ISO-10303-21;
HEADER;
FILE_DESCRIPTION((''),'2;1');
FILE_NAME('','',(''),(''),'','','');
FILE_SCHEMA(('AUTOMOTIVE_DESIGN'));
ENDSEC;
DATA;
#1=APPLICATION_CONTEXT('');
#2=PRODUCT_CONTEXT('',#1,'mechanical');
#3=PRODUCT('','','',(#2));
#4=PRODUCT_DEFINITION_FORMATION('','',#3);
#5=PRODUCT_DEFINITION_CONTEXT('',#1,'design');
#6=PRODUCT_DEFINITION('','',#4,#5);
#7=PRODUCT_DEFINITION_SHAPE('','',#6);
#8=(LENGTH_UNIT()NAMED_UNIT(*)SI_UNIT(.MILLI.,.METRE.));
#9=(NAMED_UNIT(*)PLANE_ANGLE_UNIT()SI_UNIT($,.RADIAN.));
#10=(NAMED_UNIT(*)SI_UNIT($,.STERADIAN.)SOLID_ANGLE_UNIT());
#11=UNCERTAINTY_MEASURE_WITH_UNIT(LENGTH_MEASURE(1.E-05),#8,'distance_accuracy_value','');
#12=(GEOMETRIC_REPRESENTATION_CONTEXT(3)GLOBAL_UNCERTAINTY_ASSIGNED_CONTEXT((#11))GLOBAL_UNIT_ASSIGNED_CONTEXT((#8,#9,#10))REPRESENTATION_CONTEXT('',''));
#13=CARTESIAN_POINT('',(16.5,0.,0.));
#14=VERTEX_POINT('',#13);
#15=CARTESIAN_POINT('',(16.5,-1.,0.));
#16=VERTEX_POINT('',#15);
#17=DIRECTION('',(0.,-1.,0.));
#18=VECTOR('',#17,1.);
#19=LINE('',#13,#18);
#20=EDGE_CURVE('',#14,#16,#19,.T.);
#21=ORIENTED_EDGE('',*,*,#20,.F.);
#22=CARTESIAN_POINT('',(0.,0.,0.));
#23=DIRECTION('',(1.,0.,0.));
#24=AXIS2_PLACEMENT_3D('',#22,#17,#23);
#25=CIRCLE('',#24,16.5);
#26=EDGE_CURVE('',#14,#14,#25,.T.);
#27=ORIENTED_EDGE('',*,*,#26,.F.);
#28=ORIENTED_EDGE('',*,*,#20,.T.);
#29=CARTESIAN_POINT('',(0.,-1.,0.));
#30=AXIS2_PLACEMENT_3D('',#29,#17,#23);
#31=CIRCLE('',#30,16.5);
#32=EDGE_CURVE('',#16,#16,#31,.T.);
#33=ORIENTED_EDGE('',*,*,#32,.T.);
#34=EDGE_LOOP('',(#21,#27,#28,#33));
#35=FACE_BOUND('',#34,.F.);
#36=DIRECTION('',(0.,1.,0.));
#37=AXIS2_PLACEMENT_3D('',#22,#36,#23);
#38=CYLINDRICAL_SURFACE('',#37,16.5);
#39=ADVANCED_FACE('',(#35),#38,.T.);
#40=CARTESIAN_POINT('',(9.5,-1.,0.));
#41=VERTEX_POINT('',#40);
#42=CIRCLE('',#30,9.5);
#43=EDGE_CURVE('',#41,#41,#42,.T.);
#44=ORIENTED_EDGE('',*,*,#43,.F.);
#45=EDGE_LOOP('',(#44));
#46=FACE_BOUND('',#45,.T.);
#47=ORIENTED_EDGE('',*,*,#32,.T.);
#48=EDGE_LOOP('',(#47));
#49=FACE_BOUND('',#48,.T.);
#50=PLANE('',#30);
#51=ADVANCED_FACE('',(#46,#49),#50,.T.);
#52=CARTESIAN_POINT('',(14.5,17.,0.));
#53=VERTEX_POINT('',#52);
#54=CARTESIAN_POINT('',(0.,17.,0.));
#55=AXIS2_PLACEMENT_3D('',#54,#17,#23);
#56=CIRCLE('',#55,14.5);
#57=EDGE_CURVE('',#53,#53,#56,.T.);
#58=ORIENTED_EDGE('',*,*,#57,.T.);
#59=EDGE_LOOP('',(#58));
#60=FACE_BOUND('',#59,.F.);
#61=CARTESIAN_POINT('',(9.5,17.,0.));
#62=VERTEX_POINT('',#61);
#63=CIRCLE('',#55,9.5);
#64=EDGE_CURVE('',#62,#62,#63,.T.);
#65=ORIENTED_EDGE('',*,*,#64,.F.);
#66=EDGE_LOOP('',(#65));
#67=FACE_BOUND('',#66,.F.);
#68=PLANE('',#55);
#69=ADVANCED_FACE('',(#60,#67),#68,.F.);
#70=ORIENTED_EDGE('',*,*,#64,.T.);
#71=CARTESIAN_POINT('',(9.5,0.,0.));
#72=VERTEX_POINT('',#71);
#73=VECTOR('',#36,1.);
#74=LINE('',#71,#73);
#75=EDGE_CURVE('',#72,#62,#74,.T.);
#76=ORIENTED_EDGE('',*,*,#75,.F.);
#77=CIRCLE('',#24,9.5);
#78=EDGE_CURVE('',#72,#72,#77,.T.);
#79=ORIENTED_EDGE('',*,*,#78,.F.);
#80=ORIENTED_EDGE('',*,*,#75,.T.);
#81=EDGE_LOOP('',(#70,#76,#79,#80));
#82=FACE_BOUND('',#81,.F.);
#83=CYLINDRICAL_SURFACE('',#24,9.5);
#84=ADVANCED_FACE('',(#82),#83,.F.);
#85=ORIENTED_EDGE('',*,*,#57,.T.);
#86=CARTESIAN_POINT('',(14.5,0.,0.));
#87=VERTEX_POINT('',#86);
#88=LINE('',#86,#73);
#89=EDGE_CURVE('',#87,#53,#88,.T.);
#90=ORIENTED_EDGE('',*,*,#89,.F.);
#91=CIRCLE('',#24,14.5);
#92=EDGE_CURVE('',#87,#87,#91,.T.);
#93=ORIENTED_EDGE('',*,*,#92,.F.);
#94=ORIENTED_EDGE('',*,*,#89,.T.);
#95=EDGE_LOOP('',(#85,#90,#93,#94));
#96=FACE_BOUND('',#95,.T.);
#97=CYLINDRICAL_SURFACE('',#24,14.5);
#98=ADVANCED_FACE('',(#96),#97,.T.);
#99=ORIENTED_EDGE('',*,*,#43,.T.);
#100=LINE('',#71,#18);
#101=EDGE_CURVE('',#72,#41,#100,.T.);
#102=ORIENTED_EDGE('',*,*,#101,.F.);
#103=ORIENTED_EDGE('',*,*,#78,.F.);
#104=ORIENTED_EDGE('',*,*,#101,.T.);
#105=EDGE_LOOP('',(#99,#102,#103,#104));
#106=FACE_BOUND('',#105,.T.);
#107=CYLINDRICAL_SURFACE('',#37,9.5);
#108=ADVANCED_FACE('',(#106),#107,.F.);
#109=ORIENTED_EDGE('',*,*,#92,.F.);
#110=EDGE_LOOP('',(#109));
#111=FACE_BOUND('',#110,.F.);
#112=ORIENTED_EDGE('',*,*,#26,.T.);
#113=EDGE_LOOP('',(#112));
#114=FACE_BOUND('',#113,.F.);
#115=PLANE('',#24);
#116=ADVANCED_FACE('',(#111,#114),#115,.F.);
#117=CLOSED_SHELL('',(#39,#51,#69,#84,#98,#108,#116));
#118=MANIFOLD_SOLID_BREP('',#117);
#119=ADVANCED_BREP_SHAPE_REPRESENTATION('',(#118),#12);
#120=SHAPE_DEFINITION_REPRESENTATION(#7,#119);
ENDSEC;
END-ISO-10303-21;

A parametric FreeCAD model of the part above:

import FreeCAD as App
import Part
import Sketcher
from FreeCAD import Vector

doc = App.newDocument("Part")
params = doc.addObject("Spreadsheet::Sheet", "Params")
for row, (alias, value) in enumerate([
    ("sketch1_diameter", "33 mm"),
    ("sketch1_diameter2", "19 mm"),
    ("pad1_length", "1 mm"),
    ("sketch2_diameter", "29 mm"),
    ("sketch2_diameter2", "19 mm"),
    ("pad2_length", "17 mm"),
], start=1):
    params.set(f"A{row}", alias)
    params.set(f"B{row}", "=" + value)
    params.setAlias(f"B{row}", alias)

body = doc.addObject("PartDesign::Body", "Body")

sketch1 = body.newObject("Sketcher::SketchObject", "Sketch")
sketch1.AttachmentSupport = (doc.getObject("XZ_Plane"), [""])
sketch1.MapMode = "FlatFace"
sketch1.addGeometry(Part.Circle(Vector(0, 0, 0), Vector(0, 0, 1), 16), False)
sketch1.addGeometry(Part.Circle(Vector(0, 0, 0), Vector(0, 0, 1), 10), False)
sketch1.addConstraint(Sketcher.Constraint("Coincident", 0, 3, -1, 1))
sketch1.addConstraint(Sketcher.Constraint("Coincident", 1, 3, -1, 1))
sketch1.addConstraint(Sketcher.Constraint("Diameter", 0, 33.0))
sketch1.addConstraint(Sketcher.Constraint("Diameter", 1, 19.0))
sketch1.setExpression("Constraints[2]", "Params.sketch1_diameter")
sketch1.setExpression("Constraints[3]", "Params.sketch1_diameter2")
pad1 = body.newObject("PartDesign::Pad", "Pad")
pad1.Profile = sketch1
pad1.setExpression("Length", "Params.pad1_length")

sketch2 = body.newObject("Sketcher::SketchObject", "Sketch001")
sketch2.AttachmentSupport = (doc.getObject("XZ_Plane"), [""])
sketch2.MapMode = "FlatFace"
sketch2.addGeometry(Part.Circle(Vector(0, 0, 0), Vector(0, 0, 1), 14), False)
sketch2.addGeometry(Part.Circle(Vector(0, 0, 0), Vector(0, 0, 1), 10), False)
sketch2.addConstraint(Sketcher.Constraint("Coincident", 0, 3, -1, 1))
sketch2.addConstraint(Sketcher.Constraint("Coincident", 1, 3, -1, 1))
sketch2.addConstraint(Sketcher.Constraint("Diameter", 0, 29.0))
sketch2.addConstraint(Sketcher.Constraint("Diameter", 1, 19.0))
sketch2.setExpression("Constraints[2]", "Params.sketch2_diameter")
sketch2.setExpression("Constraints[3]", "Params.sketch2_diameter2")
pad2 = body.newObject("PartDesign::Pad", "Pad001")
pad2.Profile = sketch2
pad2.setExpression("Length", "Params.pad2_length")
pad2.Reversed = True

doc.recompute()
